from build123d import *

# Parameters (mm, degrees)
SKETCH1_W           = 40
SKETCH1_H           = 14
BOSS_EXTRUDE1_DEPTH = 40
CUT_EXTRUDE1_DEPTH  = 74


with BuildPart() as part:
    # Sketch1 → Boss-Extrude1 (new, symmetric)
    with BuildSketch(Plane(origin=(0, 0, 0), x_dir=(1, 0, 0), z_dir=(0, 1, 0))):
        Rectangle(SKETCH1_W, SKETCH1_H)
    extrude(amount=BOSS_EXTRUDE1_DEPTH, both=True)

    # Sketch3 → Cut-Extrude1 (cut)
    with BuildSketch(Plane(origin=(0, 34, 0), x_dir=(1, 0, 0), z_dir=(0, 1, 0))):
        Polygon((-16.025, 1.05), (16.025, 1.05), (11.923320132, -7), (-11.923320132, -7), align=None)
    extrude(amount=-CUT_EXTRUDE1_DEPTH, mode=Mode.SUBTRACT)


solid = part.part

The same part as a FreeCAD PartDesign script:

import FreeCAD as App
import Part
import Sketcher
Q = App.Units.Quantity

doc = App.newDocument("Part")
body = doc.addObject("PartDesign::Body", "Body")

sketch1 = doc.addObject("Sketcher::SketchObject", "Sketch")
body.addObject(sketch1)
sketch1.AttachmentSupport = (doc.XZ_Plane, [""])
sketch1.MapMode = "FlatFace"
sketch1.addGeometry([
    Part.LineSegment(App.Vector(-20, -7, 0), App.Vector(-20, 7, 0)),
    Part.LineSegment(App.Vector(-20, 7, 0), App.Vector(20, 7, 0)),
    Part.LineSegment(App.Vector(20, 7, 0), App.Vector(20, -7, 0)),
    Part.LineSegment(App.Vector(20, -7, 0), App.Vector(-20, -7, 0)),
], False)
sketch1.addConstraint([
    Sketcher.Constraint("Coincident", 0, 2, 1, 1),
    Sketcher.Constraint("Coincident", 1, 2, 2, 1),
    Sketcher.Constraint("Coincident", 2, 2, 3, 1),
    Sketcher.Constraint("Coincident", 3, 2, 0, 1),
    Sketcher.Constraint("Vertical", 0),
    Sketcher.Constraint("Horizontal", 1),
    Sketcher.Constraint("Vertical", 2),
    Sketcher.Constraint("Horizontal", 3),
    Sketcher.Constraint("Symmetric", 0, 2, 2, 2, -1, 1),
    Sketcher.Constraint("DistanceX", 1, 1, 1, 2, Q("40 mm")),
    Sketcher.Constraint("DistanceY", 0, 1, 0, 2, Q("14 mm")),
])
pad1 = doc.addObject("PartDesign::Pad", "Pad")
body.addObject(pad1)
pad1.Profile = sketch1
pad1.Length = 80
pad1.Midplane = True

sketch2 = doc.addObject("Sketcher::SketchObject", "Sketch001")
body.addObject(sketch2)
sketch2.AttachmentSupport = (doc.XZ_Plane, [""])
sketch2.MapMode = "FlatFace"
sketch2.AttachmentOffset = App.Placement(App.Vector(0, 0, -34), App.Rotation())
sketch2.addGeometry([
    Part.LineSegment(App.Vector(16, -1, 0), App.Vector(-16, -1, 0)),
    Part.LineSegment(App.Vector(-16, -1, 0), App.Vector(-12, 7, 0)),
    Part.LineSegment(App.Vector(-12, 7, 0), App.Vector(12, 7, 0)),
    Part.LineSegment(App.Vector(12, 7, 0), App.Vector(16, -1, 0)),
], False)
sketch2.addConstraint([
    Sketcher.Constraint("Coincident", 0, 2, 1, 1),
    Sketcher.Constraint("Coincident", 1, 2, 2, 1),
    Sketcher.Constraint("Coincident", 2, 2, 3, 1),
    Sketcher.Constraint("Coincident", 3, 2, 0, 1),
    Sketcher.Constraint("Horizontal", 0),
    Sketcher.Constraint("Horizontal", 2),
    Sketcher.Constraint("Equal", 1, 3),
    Sketcher.Constraint("Angle", 1, Q("63 deg")),
    Sketcher.Constraint("DistanceY", -1, 1, 1, 2, Q("7 mm")),
    Sketcher.Constraint("DistanceX", 0, 2, 0, 1, Q("32.05 mm")),
    Sketcher.Constraint("DistanceY", 0, 2, -1, 1, Q("1.05 mm")),
    Sketcher.Constraint("DistanceX", 0, 2, -1, 1, Q("16.025 mm")),
])
pocket1 = doc.addObject("PartDesign::Pocket", "Pocket")
body.addObject(pocket1)
pocket1.Profile = sketch2
pocket1.Length = 74
pocket1.Reversed = True

doc.recompute()
